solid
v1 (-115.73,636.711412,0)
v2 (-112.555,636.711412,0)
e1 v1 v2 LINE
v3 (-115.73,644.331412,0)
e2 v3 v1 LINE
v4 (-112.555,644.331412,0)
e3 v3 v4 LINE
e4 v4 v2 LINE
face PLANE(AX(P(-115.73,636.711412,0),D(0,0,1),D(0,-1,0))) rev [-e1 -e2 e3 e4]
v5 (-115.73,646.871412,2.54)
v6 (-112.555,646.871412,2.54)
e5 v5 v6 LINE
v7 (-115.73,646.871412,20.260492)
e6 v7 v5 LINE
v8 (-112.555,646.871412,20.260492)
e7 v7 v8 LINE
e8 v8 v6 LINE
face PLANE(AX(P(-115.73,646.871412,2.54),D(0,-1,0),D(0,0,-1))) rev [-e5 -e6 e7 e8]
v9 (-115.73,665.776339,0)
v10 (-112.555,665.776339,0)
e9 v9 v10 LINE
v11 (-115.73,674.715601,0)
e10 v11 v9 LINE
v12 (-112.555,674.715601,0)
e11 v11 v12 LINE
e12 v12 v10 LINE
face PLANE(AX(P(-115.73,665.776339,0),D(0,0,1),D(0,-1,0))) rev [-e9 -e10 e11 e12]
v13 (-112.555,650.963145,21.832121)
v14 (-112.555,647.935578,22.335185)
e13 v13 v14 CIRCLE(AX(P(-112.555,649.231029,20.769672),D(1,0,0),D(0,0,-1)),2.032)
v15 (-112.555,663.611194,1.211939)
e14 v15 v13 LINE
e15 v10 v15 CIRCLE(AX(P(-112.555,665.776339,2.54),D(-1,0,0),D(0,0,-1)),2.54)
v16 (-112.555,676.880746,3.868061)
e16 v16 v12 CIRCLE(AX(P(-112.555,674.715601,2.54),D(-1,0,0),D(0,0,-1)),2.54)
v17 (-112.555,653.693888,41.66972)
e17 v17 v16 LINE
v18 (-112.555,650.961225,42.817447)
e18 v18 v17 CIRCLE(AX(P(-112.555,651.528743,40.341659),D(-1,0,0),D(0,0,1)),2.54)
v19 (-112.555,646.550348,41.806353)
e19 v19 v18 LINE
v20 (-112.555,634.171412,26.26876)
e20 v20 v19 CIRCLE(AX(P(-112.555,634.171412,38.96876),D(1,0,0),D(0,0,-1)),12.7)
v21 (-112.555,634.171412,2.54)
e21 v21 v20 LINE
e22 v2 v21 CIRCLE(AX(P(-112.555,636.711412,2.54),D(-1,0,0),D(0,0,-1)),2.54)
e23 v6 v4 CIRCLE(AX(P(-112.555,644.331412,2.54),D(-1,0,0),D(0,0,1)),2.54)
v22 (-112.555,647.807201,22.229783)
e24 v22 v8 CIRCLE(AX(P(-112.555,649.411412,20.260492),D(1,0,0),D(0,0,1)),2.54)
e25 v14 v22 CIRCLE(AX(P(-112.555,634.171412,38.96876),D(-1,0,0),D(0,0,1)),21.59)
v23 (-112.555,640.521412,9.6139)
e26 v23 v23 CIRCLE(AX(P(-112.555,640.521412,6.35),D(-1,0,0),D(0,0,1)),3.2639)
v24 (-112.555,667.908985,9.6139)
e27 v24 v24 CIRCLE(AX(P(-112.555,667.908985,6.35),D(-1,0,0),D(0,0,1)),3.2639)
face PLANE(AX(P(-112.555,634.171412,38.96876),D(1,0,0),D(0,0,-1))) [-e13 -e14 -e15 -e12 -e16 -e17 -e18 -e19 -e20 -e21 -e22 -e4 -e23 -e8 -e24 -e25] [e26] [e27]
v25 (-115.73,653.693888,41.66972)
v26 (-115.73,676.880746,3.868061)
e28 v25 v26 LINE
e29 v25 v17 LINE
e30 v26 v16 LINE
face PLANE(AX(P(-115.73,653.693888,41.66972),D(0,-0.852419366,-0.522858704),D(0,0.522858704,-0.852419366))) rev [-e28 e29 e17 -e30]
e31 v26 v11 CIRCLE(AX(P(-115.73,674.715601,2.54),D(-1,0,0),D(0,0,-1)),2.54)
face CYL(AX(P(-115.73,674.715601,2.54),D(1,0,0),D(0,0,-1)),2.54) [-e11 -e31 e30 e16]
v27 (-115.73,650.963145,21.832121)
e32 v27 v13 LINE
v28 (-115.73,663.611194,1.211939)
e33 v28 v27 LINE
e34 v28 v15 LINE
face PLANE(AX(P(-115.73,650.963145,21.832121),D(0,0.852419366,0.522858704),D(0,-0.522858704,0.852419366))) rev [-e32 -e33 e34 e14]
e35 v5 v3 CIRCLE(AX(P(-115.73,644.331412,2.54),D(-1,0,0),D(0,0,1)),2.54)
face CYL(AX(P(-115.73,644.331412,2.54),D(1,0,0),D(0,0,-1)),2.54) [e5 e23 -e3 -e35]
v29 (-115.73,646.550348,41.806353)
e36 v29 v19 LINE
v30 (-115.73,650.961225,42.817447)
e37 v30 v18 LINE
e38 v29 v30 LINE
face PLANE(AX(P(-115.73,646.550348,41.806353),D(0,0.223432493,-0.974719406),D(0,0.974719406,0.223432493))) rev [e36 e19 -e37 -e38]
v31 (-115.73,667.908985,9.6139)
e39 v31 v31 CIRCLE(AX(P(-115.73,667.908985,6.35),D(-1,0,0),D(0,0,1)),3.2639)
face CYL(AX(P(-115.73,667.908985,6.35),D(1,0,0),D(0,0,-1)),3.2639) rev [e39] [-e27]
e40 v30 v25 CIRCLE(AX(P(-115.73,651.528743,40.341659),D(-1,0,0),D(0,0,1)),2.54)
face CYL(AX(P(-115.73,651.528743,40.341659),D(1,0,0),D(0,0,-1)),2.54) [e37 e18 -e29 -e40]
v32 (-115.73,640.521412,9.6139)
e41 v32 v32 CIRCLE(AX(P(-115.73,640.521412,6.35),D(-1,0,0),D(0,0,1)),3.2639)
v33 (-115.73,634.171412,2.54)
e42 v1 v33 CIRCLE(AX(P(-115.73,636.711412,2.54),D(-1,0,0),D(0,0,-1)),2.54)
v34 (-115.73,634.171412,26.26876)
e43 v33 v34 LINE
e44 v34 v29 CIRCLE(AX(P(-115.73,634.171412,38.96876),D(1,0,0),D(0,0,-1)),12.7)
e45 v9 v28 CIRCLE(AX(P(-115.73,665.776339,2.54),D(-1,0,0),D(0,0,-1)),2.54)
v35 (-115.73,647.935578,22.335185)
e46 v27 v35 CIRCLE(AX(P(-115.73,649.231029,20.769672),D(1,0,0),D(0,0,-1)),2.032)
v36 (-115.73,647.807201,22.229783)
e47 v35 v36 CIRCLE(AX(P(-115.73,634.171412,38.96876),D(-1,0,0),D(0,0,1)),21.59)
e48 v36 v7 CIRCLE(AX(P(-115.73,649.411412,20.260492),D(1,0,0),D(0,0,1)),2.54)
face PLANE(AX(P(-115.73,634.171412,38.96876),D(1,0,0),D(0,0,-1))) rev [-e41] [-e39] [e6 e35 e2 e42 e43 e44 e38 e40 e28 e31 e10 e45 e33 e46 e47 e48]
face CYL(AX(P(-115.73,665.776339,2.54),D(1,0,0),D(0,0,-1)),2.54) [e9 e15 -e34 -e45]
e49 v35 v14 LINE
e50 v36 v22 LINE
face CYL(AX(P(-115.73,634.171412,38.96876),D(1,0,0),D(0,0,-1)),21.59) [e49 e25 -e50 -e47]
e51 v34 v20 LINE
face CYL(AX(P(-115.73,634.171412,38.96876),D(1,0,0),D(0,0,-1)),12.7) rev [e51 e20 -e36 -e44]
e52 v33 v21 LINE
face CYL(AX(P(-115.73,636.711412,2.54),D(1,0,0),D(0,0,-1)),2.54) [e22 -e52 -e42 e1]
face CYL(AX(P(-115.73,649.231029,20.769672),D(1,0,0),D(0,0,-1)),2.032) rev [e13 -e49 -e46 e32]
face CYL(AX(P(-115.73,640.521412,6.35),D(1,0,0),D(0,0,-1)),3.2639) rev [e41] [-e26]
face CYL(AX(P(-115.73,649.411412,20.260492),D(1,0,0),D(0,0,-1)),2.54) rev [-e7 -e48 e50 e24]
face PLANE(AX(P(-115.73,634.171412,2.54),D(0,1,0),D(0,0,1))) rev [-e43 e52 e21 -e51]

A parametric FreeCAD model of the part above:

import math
import FreeCAD as App
import Part
import Sketcher

V = App.Vector
Q = App.Units.Quantity

doc = App.newDocument("Part")
params = doc.addObject("Spreadsheet::Sheet", "Params")
for row, (alias, value) in enumerate([
    ("sketch1_radius", "0.1 in"),
    ("sketch1_radius2", "0.5 in"),
    ("sketch1_radius3", "0.08 in"),
    ("sketch1_diameter", "0.257 in"),
    ("sketch1_width", "0.3 in"),
    ("pad1_length", "0.125 in"),
], start=1):
    params.set(f"A{row}", alias)
    params.set(f"B{row}", "=" + value)
    params.setAlias(f"B{row}", alias)

body = doc.addObject("PartDesign::Body", "Body")

# Sketch on YZ plane
sketch1 = body.newObject("Sketcher::SketchObject", "Sketch")
sketch1.AttachmentSupport = (doc.getObject("YZ_Plane"), [""])
sketch1.MapMode = "FlatFace"
sketch1.AttachmentOffset = App.Placement(V(0, 0, -112.555), App.Rotation())
sketch1.addGeometry(Part.ArcOfCircle(Part.Circle(V(636.71, 2.54, 0), V(0, 0, 1), 2.54), math.radians(180), math.radians(270)), False)
sketch1.addGeometry(Part.LineSegment(V(634.17, 2.54, 0), V(634.17, 26.27, 0)), False)
sketch1.addGeometry(Part.ArcOfCircle(Part.Circle(V(634.17, 38.97, 0), V(0, 0, 1), 12.7), math.radians(-90), math.radians(13)), False)
sketch1.addGeometry(Part.LineSegment(V(646.55, 41.81, 0), V(650.96, 42.82, 0)), False)
sketch1.addGeometry(Part.ArcOfCircle(Part.Circle(V(651.53, 40.34, 0), V(0, 0, 1), 2.54), math.radians(32), math.radians(103)), False)
sketch1.addGeometry(Part.LineSegment(V(653.69, 41.67, 0), V(676.88, 3.87, 0)), False)
sketch1.addGeometry(Part.ArcOfCircle(Part.Circle(V(674.72, 2.54, 0), V(0, 0, 1), 2.54), math.radians(-90), math.radians(32)), False)
sketch1.addGeometry(Part.LineSegment(V(674.72, 0, 0), V(665.78, 0, 0)), False)
sketch1.addGeometry(Part.ArcOfCircle(Part.Circle(V(665.78, 2.54, 0), V(0, 0, 1), 2.54), math.radians(-148), math.radians(-90)), False)
sketch1.addGeometry(Part.LineSegment(V(663.61, 1.21, 0), V(650.96, 21.83, 0)), False)
sketch1.addGeometry(Part.ArcOfCircle(Part.Circle(V(649.23, 20.77, 0), V(0, 0, 1), 2.03), math.radians(32), math.radians(130)), False)
sketch1.addGeometry(Part.ArcOfCircle(Part.Circle(V(634.17, 38.97, 0), V(0, 0, 1), 21.59), math.radians(-50.83), math.radians(-50.39)), False)
sketch1.addGeometry(Part.ArcOfCircle(Part.Circle(V(649.41, 20.26, 0), V(0, 0, 1), 2.54), math.radians(129), math.radians(180)), False)
sketch1.addGeometry(Part.LineSegment(V(646.87, 20.26, 0), V(646.87, 2.54, 0)), False)
sketch1.addGeometry(Part.ArcOfCircle(Part.Circle(V(644.33, 2.54, 0), V(0, 0, 1), 2.54), math.radians(-90), math.radians(0)), False)
sketch1.addGeometry(Part.LineSegment(V(644.33, 0, 0), V(636.71, 0, 0)), False)
sketch1.addGeometry(Part.Circle(V(640.52, 6.35, 0), V(0, 0, 1), 3.26), False)
sketch1.addGeometry(Part.Circle(V(667.91, 6.35, 0), V(0, 0, 1), 3.26), False)
sketch1.addConstraint(Sketcher.Constraint("Tangent", 0, 1, 1, 1))
sketch1.addConstraint(Sketcher.Constraint("Coincident", 1, 2, 2, 1))
sketch1.addConstraint(Sketcher.Constraint("Coincident", 2, 2, 3, 1))
sketch1.addConstraint(Sketcher.Constraint("Tangent", 3, 2, 4, 2))
sketch1.addConstraint(Sketcher.Constraint("Tangent", 4, 1, 5, 1))
sketch1.addConstraint(Sketcher.Constraint("Tangent", 5, 2, 6, 2))
sketch1.addConstraint(Sketcher.Constraint("Tangent", 6, 1, 7, 1))
sketch1.addConstraint(Sketcher.Constraint("Tangent", 7, 2, 8, 2))
sketch1.addConstraint(Sketcher.Constraint("Tangent", 8, 1, 9, 1))
sketch1.addConstraint(Sketcher.Constraint("Tangent", 9, 2, 10, 1))
sketch1.addConstraint(Sketcher.Constraint("Tangent", 10, 2, 11, 2))
sketch1.addConstraint(Sketcher.Constraint("Tangent", 11, 1, 12, 1))
sketch1.addConstraint(Sketcher.Constraint("Tangent", 12, 2, 13, 1))
sketch1.addConstraint(Sketcher.Constraint("Tangent", 13, 2, 14, 2))
sketch1.addConstraint(Sketcher.Constraint("Tangent", 14, 1, 15, 1))
sketch1.addConstraint(Sketcher.Constraint("Tangent", 15, 2, 0, 2))
sketch1.addConstraint(Sketcher.Constraint("Vertical", 1))
sketch1.addConstraint(Sketcher.Constraint("Horizontal", 7))
sketch1.addConstraint(Sketcher.Constraint("Vertical", 13))
sketch1.addConstraint(Sketcher.Constraint("Horizontal", 15))
sketch1.addConstraint(Sketcher.Constraint("Equal", 0, 4))
sketch1.addConstraint(Sketcher.Constraint("Equal", 4, 6))
sketch1.addConstraint(Sketcher.Constraint("Equal", 6, 8))
sketch1.addConstraint(Sketcher.Constraint("Equal", 8, 12))
sketch1.addConstraint(Sketcher.Constraint("Equal", 12, 14))
sketch1.addConstraint(Sketcher.Constraint("Equal", 16, 17))
sketch1.addConstraint(Sketcher.Constraint("PointOnObject", 6, 1, -1))
sketch1.addConstraint(Sketcher.Constraint("PointOnObject", 14, 1, -1))
sketch1.addConstraint(Sketcher.Constraint("Parallel", 5, 9))
sketch1.addConstraint(Sketcher.Constraint("Horizontal", 16, 3, 17, 3))
sketch1.addConstraint(Sketcher.Constraint("Vertical", 2, 3, 0, 1))
sketch1.addConstraint(Sketcher.Constraint("Radius", 0, Q("0.1 in")))
sketch1.addConstraint(Sketcher.Constraint("Radius", 2, Q("0.5 in")))
sketch1.addConstraint(Sketcher.Constraint("Radius", 10, Q("0.08 in")))
sketch1.addConstraint(Sketcher.Constraint("Diameter", 16, Q("0.257 in")))
sketch1.addConstraint(Sketcher.Constraint("DistanceX", 15, 2, 15, 1, Q("0.3 in")))
sketch1.addConstraint(Sketcher.Constraint("DistanceY", -1, 1, 16, 3, Q("0.25 in")))
sketch1.addConstraint(Sketcher.Constraint("Radius", 11, 21.589898))
sketch1.addConstraint(Sketcher.Constraint("DistanceX", 16, 3, 14, 3, Q("0.15 in")))
sketch1.addConstraint(Sketcher.Constraint("DistanceY", -1, 1, 11, 3, Q("1.5342 in")))
sketch1.addConstraint(Sketcher.Constraint("DistanceX", 7, 2, 7, 1, 8.939262))
sketch1.addConstraint(Sketcher.Constraint("DistanceY", 1, 1, 1, 2, 23.72876))
sketch1.addConstraint(Sketcher.Constraint("DistanceY", 13, 2, 13, 1, 17.720492))
sketch1.addConstraint(Sketcher.Constraint("DistanceX", -1, 1, 6, 3, 674.715601))
sketch1.addConstraint(Sketcher.Constraint("DistanceX", -1, 1, 11, 1, 647.807201))
sketch1.addConstraint(Sketcher.Constraint("DistanceY", 2, 3, 4, 3, 1.3729))
sketch1.addConstraint(Sketcher.Constraint("DistanceY", 11, 1, 10, 2, 0.105402))
sketch1.addConstraint(Sketcher.Constraint("Distance", 3, 4.525278))
sketch1.addConstraint(Sketcher.Constraint("DistanceX", 17, 3, 5, 2, 8.971762))
sketch1.setExpression("Constraints[31]", "Params.sketch1_radius")
sketch1.setExpression("Constraints[32]", "Params.sketch1_radius2")
sketch1.setExpression("Constraints[33]", "Params.sketch1_radius3")
sketch1.setExpression("Constraints[34]", "Params.sketch1_diameter")
sketch1.setExpression("Constraints[35]", "Params.sketch1_width")
pad1 = body.newObject("PartDesign::Pad", "Pad")
pad1.Profile = sketch1
pad1.setExpression("Length", "Params.pad1_length")
pad1.Reversed = True

doc.recompute()
